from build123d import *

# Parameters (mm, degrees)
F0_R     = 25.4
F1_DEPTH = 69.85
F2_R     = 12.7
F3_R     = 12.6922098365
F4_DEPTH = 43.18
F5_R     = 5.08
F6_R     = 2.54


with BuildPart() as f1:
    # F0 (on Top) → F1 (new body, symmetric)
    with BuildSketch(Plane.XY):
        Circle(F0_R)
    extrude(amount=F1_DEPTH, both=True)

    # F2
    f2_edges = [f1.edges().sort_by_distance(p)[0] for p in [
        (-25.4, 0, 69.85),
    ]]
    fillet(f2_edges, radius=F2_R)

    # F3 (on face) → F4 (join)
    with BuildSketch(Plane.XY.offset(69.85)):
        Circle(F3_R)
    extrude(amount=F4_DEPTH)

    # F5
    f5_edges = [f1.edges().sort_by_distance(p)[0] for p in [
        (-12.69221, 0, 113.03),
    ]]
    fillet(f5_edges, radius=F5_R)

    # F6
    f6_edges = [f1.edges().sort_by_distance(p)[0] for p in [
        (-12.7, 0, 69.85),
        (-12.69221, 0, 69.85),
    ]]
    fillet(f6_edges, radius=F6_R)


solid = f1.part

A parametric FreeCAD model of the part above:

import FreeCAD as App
import Part
import Sketcher

V = App.Vector
Q = App.Units.Quantity


def edges_at(feature, points):
    """Names of the edges that pass closest to the given points."""
    edges = feature.Shape.Edges
    near = lambda p: min(range(len(edges)), key=lambda i: edges[i].distToShape(Part.Vertex(*p))[0])
    return sorted({f"Edge{near(p) + 1}" for p in points})

doc = App.newDocument("Part")
body = doc.addObject("PartDesign::Body", "Body")

sketch1 = body.newObject("Sketcher::SketchObject", "Sketch")
sketch1.AttachmentSupport = (doc.getObject("XY_Plane"), [""])
sketch1.MapMode = "FlatFace"
sketch1.addGeometry(Part.Circle(V(0, 0, 0), V(0, 0, 1), 25), False)
sketch1.addConstraint([
    Sketcher.Constraint("Coincident", 0, 3, -1, 1),
    Sketcher.Constraint("Diameter", 0, Q("2 in")),
])
pad1 = body.newObject("PartDesign::Pad", "Pad")
pad1.Profile = sketch1
pad1.Length = Q("5.5 in")
pad1.Midplane = True
doc.recompute()

fillet = body.newObject("PartDesign::Fillet", "Fillet")
fillet.Base = (pad1, edges_at(pad1, [(-25.4, 0, 69.85)]))
fillet.Radius = Q("0.5 in")

sketch2 = body.newObject("Sketcher::SketchObject", "Sketch001")
sketch2.AttachmentSupport = (doc.getObject("XY_Plane"), [""])
sketch2.MapMode = "FlatFace"
sketch2.AttachmentOffset = App.Placement(V(0, 0, 2.75 * 25.4), App.Rotation())
sketch2.addGeometry(Part.Circle(V(0, 0, 0), V(0, 0, 1), 13), False)
sketch2.addConstraint([
    Sketcher.Constraint("Coincident", 0, 3, -1, 1),
    Sketcher.Constraint("Diameter", 0, 25.38442),
])
pad2 = body.newObject("PartDesign::Pad", "Pad001")
pad2.Profile = sketch2
pad2.Length = Q("1.7 in")
doc.recompute()

fillet2 = body.newObject("PartDesign::Fillet", "Fillet001")
fillet2.Base = (pad2, edges_at(pad2, [(-12.692, 0, 113.03)]))
fillet2.Radius = Q("0.2 in")
doc.recompute()

fillet3 = body.newObject("PartDesign::Fillet", "Fillet002")
fillet3.Base = (fillet2, edges_at(fillet2, [(-12.7, 0, 69.85), (-12.692, 0, 69.85)]))
fillet3.Radius = Q("0.1 in")

doc.recompute()
